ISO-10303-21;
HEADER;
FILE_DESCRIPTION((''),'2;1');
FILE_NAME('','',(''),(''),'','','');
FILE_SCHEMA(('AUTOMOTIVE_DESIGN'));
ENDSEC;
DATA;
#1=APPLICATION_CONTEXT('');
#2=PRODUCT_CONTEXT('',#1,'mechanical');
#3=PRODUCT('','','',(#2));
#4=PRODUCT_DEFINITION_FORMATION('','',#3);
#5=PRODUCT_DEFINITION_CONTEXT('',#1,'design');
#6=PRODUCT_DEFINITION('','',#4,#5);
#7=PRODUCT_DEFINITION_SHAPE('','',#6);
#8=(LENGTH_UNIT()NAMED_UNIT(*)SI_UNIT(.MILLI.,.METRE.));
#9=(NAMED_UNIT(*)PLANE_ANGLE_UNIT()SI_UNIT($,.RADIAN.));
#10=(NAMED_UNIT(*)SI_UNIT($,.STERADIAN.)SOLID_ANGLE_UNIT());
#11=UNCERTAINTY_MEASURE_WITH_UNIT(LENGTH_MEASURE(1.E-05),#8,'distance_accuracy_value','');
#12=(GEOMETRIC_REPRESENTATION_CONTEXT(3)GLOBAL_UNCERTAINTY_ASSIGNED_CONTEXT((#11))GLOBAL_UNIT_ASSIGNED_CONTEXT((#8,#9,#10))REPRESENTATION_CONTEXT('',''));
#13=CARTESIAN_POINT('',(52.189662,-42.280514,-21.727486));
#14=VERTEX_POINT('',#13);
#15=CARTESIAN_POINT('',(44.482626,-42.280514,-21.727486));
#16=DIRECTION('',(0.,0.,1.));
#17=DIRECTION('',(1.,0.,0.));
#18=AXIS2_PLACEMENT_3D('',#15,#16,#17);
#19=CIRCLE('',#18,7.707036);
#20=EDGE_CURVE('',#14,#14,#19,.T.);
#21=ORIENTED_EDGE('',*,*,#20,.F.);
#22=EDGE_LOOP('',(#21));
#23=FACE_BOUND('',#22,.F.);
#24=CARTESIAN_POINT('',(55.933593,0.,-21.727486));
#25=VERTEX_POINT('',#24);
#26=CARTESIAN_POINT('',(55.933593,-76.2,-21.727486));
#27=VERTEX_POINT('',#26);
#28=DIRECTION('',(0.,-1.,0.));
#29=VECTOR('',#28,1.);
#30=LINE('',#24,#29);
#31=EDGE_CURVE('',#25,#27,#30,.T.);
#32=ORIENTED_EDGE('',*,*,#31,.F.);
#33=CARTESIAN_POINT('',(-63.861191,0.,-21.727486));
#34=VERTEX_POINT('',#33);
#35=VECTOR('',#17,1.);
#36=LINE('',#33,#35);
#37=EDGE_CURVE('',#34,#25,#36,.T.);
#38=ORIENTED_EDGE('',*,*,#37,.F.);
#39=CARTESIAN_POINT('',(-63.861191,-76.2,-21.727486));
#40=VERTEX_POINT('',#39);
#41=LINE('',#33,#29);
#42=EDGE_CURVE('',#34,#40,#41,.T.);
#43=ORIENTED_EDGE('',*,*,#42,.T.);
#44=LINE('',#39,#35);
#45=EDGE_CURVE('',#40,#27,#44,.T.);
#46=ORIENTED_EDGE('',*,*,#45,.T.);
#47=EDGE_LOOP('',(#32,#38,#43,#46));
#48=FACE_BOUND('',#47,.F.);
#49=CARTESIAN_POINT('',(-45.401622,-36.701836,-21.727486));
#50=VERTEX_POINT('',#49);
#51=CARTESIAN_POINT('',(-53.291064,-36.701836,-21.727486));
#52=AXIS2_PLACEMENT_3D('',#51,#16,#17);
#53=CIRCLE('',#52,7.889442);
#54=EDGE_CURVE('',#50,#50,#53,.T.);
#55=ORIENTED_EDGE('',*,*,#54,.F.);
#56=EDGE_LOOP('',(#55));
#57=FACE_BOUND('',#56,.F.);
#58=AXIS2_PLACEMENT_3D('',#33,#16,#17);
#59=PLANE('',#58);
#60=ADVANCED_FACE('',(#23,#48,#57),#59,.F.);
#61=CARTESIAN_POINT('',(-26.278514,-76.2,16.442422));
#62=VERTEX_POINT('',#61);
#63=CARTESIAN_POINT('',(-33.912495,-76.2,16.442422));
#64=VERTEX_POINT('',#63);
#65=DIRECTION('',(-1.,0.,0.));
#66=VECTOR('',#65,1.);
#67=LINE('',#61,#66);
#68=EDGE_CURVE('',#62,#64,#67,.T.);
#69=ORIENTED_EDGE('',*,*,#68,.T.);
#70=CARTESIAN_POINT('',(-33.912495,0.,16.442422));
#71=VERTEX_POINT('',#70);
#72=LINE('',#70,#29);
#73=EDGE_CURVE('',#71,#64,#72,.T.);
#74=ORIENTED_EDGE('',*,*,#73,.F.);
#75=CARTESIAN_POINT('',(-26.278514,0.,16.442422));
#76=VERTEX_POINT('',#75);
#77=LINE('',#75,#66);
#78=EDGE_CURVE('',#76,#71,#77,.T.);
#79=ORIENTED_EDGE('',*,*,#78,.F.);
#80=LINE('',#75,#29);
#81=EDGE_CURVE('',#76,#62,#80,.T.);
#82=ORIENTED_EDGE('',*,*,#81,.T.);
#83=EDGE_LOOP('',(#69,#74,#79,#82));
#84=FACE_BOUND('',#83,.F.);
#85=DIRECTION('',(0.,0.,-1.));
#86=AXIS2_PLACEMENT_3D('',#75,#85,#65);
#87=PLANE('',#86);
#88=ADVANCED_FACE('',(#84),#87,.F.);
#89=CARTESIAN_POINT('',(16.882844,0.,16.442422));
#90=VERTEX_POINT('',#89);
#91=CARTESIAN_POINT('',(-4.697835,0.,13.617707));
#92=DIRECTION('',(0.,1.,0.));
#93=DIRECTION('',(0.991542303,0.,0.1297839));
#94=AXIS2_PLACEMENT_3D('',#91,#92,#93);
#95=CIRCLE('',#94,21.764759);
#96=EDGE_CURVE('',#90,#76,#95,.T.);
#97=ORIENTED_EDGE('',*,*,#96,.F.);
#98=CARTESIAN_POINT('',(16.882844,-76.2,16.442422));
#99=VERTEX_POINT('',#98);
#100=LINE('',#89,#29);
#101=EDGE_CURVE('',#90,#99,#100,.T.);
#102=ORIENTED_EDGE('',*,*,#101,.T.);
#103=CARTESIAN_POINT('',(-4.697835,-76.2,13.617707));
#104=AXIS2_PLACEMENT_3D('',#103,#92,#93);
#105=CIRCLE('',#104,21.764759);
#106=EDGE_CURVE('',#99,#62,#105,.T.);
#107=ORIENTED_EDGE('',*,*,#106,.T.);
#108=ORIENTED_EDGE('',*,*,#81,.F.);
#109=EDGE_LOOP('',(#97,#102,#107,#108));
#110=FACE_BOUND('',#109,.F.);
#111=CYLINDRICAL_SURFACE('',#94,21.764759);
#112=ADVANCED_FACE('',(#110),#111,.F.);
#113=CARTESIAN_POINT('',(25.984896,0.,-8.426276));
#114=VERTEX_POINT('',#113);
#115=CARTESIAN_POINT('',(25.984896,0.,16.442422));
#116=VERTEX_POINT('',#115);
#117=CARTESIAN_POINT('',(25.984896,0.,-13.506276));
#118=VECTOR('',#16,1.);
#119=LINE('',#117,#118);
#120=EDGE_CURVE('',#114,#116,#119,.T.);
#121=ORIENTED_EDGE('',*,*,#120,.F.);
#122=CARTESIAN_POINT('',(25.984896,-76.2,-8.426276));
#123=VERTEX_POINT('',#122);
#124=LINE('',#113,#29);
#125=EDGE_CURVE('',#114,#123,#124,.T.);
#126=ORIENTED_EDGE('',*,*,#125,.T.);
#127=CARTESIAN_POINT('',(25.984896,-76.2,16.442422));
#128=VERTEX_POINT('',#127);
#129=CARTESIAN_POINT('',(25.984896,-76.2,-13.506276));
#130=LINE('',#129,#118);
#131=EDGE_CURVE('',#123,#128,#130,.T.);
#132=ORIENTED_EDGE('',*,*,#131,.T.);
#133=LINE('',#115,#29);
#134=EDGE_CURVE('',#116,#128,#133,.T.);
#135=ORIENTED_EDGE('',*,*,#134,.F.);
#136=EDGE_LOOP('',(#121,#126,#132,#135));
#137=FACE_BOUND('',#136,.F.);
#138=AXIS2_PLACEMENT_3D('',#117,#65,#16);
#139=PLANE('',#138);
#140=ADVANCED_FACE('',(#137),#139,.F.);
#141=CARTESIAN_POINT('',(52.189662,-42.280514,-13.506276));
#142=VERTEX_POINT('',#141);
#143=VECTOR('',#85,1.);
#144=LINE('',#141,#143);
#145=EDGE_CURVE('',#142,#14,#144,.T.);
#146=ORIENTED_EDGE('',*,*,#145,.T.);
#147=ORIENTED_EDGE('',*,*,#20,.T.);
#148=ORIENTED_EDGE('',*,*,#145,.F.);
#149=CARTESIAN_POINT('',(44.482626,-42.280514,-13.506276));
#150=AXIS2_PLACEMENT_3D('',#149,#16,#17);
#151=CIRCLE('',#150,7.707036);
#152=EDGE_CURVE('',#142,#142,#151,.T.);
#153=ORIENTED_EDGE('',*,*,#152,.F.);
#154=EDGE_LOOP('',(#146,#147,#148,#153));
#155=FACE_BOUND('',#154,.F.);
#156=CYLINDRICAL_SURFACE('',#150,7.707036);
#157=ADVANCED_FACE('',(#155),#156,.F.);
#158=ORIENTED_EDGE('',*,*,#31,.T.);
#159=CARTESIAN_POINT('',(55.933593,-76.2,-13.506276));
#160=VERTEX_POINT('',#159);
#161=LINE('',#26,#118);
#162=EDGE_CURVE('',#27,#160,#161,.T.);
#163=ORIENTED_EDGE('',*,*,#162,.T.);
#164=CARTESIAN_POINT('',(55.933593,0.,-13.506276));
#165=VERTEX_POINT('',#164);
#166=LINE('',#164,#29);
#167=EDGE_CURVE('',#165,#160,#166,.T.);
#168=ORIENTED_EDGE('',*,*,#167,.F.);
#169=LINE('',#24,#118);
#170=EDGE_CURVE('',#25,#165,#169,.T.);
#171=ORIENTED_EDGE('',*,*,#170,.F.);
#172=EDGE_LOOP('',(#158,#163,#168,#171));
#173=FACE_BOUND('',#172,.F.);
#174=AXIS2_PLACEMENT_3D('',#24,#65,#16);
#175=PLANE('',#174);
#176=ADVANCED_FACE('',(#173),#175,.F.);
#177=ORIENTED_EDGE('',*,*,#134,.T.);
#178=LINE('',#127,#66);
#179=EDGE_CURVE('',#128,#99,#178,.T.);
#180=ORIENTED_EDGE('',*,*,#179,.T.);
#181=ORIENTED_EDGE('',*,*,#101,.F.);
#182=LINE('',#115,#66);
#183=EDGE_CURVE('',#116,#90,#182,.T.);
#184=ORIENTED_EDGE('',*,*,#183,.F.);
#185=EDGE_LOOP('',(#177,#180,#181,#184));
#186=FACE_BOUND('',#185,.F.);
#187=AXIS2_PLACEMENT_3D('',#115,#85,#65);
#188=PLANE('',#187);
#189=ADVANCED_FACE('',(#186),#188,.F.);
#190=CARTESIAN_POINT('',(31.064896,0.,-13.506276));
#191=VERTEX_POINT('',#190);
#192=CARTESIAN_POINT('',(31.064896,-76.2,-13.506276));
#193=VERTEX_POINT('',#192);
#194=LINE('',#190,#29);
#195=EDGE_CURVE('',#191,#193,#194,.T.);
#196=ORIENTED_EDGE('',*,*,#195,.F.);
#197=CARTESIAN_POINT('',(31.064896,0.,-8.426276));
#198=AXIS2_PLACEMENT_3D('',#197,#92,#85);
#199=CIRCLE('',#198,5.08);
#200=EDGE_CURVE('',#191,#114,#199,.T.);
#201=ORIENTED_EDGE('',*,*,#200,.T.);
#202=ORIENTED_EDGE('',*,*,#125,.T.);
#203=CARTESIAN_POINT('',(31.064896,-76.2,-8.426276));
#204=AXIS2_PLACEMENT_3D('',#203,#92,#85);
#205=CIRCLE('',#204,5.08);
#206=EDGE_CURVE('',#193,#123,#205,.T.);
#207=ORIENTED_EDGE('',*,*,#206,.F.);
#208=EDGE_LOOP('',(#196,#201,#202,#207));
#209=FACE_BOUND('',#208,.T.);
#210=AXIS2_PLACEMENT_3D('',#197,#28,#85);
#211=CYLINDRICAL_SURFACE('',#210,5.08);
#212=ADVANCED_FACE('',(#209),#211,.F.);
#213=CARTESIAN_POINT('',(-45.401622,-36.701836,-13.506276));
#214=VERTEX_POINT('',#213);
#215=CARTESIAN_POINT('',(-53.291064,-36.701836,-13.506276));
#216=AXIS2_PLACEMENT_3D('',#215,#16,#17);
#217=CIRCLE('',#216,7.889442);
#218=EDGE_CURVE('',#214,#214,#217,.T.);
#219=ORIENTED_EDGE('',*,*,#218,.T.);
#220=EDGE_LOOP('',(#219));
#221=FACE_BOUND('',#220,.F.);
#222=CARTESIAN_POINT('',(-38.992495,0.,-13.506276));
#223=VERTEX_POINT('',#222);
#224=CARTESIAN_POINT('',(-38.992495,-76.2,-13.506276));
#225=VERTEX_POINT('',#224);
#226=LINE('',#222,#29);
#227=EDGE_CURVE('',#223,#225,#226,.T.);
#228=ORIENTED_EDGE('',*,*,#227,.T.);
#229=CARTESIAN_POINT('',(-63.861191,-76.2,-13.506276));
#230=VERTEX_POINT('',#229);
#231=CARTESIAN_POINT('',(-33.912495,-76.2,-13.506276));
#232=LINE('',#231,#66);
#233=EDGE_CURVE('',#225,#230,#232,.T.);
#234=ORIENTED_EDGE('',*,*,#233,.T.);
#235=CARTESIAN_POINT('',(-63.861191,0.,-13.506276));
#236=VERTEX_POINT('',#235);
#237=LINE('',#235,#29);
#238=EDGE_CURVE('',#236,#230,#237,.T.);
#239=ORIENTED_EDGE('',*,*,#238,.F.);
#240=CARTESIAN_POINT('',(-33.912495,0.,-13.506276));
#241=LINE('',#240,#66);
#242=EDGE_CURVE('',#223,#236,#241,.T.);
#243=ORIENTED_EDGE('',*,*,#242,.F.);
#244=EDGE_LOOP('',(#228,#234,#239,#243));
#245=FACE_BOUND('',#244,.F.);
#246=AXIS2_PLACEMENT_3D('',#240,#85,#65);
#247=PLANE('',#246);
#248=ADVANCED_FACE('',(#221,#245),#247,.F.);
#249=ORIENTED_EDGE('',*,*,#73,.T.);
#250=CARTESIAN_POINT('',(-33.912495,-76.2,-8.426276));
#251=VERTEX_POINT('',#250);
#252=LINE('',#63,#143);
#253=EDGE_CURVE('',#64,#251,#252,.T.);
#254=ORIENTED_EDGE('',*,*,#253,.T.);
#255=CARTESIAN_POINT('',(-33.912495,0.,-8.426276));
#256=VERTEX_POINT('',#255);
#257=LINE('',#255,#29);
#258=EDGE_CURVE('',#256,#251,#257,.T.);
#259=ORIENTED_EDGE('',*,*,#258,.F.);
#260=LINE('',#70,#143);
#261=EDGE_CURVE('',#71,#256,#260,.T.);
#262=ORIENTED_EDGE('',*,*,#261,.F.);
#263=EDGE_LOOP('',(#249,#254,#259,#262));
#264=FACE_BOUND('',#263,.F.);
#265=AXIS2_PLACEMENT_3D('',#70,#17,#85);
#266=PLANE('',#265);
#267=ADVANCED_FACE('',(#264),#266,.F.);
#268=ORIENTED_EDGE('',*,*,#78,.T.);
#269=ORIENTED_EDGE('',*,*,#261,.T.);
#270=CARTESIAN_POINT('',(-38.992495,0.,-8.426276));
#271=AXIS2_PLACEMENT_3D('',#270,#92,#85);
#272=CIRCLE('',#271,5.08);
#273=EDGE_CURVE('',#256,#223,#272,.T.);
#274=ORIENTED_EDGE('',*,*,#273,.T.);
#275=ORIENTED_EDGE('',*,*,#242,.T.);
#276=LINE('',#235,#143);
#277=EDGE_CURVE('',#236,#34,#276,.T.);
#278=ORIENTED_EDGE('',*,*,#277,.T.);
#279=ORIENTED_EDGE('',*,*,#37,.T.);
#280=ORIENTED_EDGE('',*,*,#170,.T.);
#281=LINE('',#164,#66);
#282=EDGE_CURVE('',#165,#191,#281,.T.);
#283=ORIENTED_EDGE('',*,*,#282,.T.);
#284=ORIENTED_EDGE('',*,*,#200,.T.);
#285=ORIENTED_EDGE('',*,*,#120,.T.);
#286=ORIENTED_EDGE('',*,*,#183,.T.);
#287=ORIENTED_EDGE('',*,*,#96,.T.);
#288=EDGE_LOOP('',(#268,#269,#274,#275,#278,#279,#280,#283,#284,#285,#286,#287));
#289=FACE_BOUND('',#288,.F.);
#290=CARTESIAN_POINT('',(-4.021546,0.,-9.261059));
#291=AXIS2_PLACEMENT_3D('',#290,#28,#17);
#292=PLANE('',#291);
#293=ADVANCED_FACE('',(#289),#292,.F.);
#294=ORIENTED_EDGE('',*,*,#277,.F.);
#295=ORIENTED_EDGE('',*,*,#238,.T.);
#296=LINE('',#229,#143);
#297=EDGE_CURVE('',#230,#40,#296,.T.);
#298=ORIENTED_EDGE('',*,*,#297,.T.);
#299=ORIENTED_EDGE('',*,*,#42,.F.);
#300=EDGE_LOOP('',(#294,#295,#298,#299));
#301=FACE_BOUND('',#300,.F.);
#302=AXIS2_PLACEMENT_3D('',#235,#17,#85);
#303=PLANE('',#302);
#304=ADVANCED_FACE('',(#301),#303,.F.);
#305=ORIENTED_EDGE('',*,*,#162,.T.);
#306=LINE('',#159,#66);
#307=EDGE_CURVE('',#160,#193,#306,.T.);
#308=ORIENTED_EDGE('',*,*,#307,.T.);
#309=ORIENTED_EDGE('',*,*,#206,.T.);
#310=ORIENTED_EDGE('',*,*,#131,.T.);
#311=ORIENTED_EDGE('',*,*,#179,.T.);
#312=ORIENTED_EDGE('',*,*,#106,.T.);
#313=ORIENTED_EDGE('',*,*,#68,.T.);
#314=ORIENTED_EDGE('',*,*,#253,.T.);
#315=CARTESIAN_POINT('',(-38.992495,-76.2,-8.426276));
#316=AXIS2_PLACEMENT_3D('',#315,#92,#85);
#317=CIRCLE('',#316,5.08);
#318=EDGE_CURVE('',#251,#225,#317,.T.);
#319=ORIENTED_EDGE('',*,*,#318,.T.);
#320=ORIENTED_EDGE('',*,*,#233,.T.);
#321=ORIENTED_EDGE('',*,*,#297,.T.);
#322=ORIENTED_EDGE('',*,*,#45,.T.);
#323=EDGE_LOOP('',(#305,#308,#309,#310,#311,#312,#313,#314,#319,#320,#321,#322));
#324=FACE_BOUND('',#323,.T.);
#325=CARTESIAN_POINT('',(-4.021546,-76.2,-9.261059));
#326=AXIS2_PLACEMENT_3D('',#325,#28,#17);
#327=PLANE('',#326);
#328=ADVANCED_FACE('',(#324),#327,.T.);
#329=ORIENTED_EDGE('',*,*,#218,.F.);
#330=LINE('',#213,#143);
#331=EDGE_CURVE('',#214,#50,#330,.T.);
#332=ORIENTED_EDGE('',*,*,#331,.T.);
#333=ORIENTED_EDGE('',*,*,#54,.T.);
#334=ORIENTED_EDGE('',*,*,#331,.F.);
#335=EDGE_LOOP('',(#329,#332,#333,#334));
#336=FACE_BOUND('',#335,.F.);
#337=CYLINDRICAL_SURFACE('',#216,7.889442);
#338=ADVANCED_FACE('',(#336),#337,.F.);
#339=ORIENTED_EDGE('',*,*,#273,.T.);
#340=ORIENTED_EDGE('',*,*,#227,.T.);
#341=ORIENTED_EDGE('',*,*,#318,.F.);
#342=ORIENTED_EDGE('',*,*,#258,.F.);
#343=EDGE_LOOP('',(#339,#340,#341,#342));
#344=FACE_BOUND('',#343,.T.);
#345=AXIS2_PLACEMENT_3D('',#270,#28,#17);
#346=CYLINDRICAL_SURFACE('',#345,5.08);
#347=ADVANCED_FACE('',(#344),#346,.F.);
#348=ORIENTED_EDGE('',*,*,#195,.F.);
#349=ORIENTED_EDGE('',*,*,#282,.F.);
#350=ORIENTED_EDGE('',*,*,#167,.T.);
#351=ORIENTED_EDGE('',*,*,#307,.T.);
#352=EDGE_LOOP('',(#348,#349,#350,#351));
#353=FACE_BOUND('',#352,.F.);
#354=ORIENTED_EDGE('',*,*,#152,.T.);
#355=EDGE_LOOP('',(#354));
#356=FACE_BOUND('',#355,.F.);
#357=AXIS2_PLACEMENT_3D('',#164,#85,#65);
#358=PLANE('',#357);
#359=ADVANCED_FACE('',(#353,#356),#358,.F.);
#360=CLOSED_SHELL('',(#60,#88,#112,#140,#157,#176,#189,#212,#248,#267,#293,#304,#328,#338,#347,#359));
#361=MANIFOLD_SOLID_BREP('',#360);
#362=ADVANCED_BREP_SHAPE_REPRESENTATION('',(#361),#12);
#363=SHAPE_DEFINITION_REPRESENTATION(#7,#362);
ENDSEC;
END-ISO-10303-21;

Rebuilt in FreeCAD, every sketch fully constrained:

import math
import FreeCAD as App
import Part
import Sketcher
from FreeCAD import Vector
Q = App.Units.Quantity


def edges_at(feature, points):
    """Names of the edges that pass closest to the given points."""
    edges = feature.Shape.Edges
    near = lambda p: min(range(len(edges)), key=lambda i: edges[i].distToShape(Part.Vertex(*p))[0])
    return sorted({f"Edge{near(p) + 1}" for p in points})

doc = App.newDocument("Part")
body = doc.addObject("PartDesign::Body", "Body")

sketch1 = body.newObject("Sketcher::SketchObject", "Sketch")
sketch1.AttachmentSupport = (doc.getObject("XZ_Plane"), [""])
sketch1.MapMode = "FlatFace"
sketch1.addGeometry([
    Part.LineSegment(Vector(-64, -14, 0), Vector(-64, -22, 0)),
    Part.LineSegment(Vector(-64, -22, 0), Vector(56, -22, 0)),
    Part.LineSegment(Vector(56, -22, 0), Vector(56, -14, 0)),
    Part.LineSegment(Vector(56, -14, 0), Vector(26, -14, 0)),
    Part.LineSegment(Vector(26, -14, 0), Vector(26, 16, 0)),
    Part.LineSegment(Vector(26, 16, 0), Vector(17, 16, 0)),
    Part.ArcOfCircle(Part.Circle(Vector(-5, 14, 0), Vector(0, 0, 1), 22), math.radians(173), math.radians(367)),
    Part.LineSegment(Vector(-26, 16, 0), Vector(-34, 16, 0)),
    Part.LineSegment(Vector(-34, 16, 0), Vector(-34, -14, 0)),
    Part.LineSegment(Vector(-34, -14, 0), Vector(-64, -14, 0)),
], False)
sketch1.addConstraint([
    Sketcher.Constraint("Coincident", 0, 2, 1, 1),
    Sketcher.Constraint("Coincident", 1, 2, 2, 1),
    Sketcher.Constraint("Coincident", 2, 2, 3, 1),
    Sketcher.Constraint("Coincident", 3, 2, 4, 1),
    Sketcher.Constraint("Coincident", 4, 2, 5, 1),
    Sketcher.Constraint("Coincident", 5, 2, 6, 2),
    Sketcher.Constraint("Coincident", 6, 1, 7, 1),
    Sketcher.Constraint("Coincident", 7, 2, 8, 1),
    Sketcher.Constraint("Coincident", 8, 2, 9, 1),
    Sketcher.Constraint("Coincident", 9, 2, 0, 1),
    Sketcher.Constraint("Vertical", 0),
    Sketcher.Constraint("Horizontal", 1),
    Sketcher.Constraint("Vertical", 2),
    Sketcher.Constraint("Horizontal", 3),
    Sketcher.Constraint("Vertical", 4),
    Sketcher.Constraint("Horizontal", 5),
    Sketcher.Constraint("Horizontal", 7),
    Sketcher.Constraint("Vertical", 8),
    Sketcher.Constraint("Horizontal", 9),
    Sketcher.Constraint("Horizontal", 5, 2, 6, 1),
    Sketcher.Constraint("Horizontal", 3, 2, 8, 2),
    Sketcher.Constraint("Equal", 3, 9),
    Sketcher.Constraint("Equal", 3, 4),
    Sketcher.Constraint("Radius", 6, 21.764759),
    Sketcher.Constraint("DistanceY", 4, 1, 4, 2, 29.948698),
    Sketcher.Constraint("DistanceX", 7, 2, 7, 1, 7.633981),
    Sketcher.Constraint("DistanceY", 0, 2, 0, 1, 8.22121),
    Sketcher.Constraint("DistanceX", 1, 1, 1, 2, 119.794784),
    Sketcher.Constraint("DistanceX", 5, 2, 5, 1, 9.102052),
    Sketcher.Constraint("DistanceX", 0, 2, -1, 1, 63.861191),
    Sketcher.Constraint("DistanceY", -1, 1, 6, 3, 13.617707),
])
pad1 = body.newObject("PartDesign::Pad", "Pad")
pad1.Profile = sketch1
pad1.Length = Q("3 in")
doc.recompute()

fillet = body.newObject("PartDesign::Fillet", "Fillet")
fillet.Base = (pad1, edges_at(pad1, [(-33.912, -38.1, -13.506), (25.985, -38.1, -13.506)]))
fillet.Radius = Q("0.2 in")

sketch2 = body.newObject("Sketcher::SketchObject", "Sketch001")
sketch2.AttachmentSupport = (doc.getObject("XY_Plane"), [""])
sketch2.MapMode = "FlatFace"
sketch2.AttachmentOffset = App.Placement(Vector(0, 0, -13.506276), App.Rotation())
sketch2.addGeometry([
    Part.Circle(Vector(44, -42, 0), Vector(0, 0, 1), 8),
    Part.Circle(Vector(-53, -37, 0), Vector(0, 0, 1), 8),
], False)
sketch2.addConstraint([
    Sketcher.Constraint("Diameter", 0, 15.414072),
    Sketcher.Constraint("Diameter", 1, 15.778884),
    Sketcher.Constraint("DistanceX", 1, 3, 0, 3, 97.77369),
    Sketcher.Constraint("DistanceX", -1, 1, 0, 3, 44.482626),
    Sketcher.Constraint("DistanceY", 0, 3, -1, 1, 42.280514),
    Sketcher.Constraint("DistanceY", 1, 3, -1, 1, 36.701836),
])
pocket1 = body.newObject("PartDesign::Pocket", "Pocket")
pocket1.Profile = sketch2
pocket1.Length = Q("1 in")

doc.recompute()
